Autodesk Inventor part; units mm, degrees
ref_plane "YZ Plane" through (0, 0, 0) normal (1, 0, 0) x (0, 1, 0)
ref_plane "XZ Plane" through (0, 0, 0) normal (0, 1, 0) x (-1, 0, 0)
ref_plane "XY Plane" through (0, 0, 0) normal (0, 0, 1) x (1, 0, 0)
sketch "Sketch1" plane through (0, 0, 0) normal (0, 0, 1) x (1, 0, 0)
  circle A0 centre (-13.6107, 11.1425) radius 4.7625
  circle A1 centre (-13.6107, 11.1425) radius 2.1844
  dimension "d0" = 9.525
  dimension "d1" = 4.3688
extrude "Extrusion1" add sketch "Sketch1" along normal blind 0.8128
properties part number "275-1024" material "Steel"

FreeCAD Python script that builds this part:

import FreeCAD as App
import Part
import Sketcher

V = App.Vector
Q = App.Units.Quantity

doc = App.newDocument("Part")
params = doc.addObject("Spreadsheet::Sheet", "Params")
for row, (alias, value) in enumerate([
    ("sketch1_diameter", "0.375 in"),
    ("sketch1_diameter2", "0.172 in"),
    ("pad1_length", "0.032 in"),
], start=1):
    params.set(f"A{row}", alias)
    params.set(f"B{row}", "=" + value)
    params.setAlias(f"B{row}", alias)

body = doc.addObject("PartDesign::Body", "Body")

# Sketch on XY plane
sketch1 = doc.addObject("Sketcher::SketchObject", "Sketch")
body.addObject(sketch1)
sketch1.AttachmentSupport = (doc.XY_Plane, [""])
sketch1.MapMode = "FlatFace"
sketch1.addGeometry([
    Part.Circle(V(-13.6, 11.1, 0), V(0, 0, 1), 4.8),
    Part.Circle(V(-13.6, 11.1, 0), V(0, 0, 1), 2.2),
], False)
sketch1.addConstraint([
    Sketcher.Constraint("Coincident", 1, 3, 0, 3),
    Sketcher.Constraint("Diameter", 0, Q("0.375 in")),
    Sketcher.Constraint("Diameter", 1, Q("0.172 in")),
    Sketcher.Constraint("DistanceX", 0, 3, -1, 1, 13.6107),
    Sketcher.Constraint("DistanceY", -1, 1, 0, 3, 11.1425),
])
sketch1.setExpression("Constraints[1]", "Params.sketch1_diameter")
sketch1.setExpression("Constraints[2]", "Params.sketch1_diameter2")
pad1 = doc.addObject("PartDesign::Pad", "Pad")
body.addObject(pad1)
pad1.Profile = sketch1
pad1.setExpression("Length", "Params.pad1_length")

doc.recompute()
